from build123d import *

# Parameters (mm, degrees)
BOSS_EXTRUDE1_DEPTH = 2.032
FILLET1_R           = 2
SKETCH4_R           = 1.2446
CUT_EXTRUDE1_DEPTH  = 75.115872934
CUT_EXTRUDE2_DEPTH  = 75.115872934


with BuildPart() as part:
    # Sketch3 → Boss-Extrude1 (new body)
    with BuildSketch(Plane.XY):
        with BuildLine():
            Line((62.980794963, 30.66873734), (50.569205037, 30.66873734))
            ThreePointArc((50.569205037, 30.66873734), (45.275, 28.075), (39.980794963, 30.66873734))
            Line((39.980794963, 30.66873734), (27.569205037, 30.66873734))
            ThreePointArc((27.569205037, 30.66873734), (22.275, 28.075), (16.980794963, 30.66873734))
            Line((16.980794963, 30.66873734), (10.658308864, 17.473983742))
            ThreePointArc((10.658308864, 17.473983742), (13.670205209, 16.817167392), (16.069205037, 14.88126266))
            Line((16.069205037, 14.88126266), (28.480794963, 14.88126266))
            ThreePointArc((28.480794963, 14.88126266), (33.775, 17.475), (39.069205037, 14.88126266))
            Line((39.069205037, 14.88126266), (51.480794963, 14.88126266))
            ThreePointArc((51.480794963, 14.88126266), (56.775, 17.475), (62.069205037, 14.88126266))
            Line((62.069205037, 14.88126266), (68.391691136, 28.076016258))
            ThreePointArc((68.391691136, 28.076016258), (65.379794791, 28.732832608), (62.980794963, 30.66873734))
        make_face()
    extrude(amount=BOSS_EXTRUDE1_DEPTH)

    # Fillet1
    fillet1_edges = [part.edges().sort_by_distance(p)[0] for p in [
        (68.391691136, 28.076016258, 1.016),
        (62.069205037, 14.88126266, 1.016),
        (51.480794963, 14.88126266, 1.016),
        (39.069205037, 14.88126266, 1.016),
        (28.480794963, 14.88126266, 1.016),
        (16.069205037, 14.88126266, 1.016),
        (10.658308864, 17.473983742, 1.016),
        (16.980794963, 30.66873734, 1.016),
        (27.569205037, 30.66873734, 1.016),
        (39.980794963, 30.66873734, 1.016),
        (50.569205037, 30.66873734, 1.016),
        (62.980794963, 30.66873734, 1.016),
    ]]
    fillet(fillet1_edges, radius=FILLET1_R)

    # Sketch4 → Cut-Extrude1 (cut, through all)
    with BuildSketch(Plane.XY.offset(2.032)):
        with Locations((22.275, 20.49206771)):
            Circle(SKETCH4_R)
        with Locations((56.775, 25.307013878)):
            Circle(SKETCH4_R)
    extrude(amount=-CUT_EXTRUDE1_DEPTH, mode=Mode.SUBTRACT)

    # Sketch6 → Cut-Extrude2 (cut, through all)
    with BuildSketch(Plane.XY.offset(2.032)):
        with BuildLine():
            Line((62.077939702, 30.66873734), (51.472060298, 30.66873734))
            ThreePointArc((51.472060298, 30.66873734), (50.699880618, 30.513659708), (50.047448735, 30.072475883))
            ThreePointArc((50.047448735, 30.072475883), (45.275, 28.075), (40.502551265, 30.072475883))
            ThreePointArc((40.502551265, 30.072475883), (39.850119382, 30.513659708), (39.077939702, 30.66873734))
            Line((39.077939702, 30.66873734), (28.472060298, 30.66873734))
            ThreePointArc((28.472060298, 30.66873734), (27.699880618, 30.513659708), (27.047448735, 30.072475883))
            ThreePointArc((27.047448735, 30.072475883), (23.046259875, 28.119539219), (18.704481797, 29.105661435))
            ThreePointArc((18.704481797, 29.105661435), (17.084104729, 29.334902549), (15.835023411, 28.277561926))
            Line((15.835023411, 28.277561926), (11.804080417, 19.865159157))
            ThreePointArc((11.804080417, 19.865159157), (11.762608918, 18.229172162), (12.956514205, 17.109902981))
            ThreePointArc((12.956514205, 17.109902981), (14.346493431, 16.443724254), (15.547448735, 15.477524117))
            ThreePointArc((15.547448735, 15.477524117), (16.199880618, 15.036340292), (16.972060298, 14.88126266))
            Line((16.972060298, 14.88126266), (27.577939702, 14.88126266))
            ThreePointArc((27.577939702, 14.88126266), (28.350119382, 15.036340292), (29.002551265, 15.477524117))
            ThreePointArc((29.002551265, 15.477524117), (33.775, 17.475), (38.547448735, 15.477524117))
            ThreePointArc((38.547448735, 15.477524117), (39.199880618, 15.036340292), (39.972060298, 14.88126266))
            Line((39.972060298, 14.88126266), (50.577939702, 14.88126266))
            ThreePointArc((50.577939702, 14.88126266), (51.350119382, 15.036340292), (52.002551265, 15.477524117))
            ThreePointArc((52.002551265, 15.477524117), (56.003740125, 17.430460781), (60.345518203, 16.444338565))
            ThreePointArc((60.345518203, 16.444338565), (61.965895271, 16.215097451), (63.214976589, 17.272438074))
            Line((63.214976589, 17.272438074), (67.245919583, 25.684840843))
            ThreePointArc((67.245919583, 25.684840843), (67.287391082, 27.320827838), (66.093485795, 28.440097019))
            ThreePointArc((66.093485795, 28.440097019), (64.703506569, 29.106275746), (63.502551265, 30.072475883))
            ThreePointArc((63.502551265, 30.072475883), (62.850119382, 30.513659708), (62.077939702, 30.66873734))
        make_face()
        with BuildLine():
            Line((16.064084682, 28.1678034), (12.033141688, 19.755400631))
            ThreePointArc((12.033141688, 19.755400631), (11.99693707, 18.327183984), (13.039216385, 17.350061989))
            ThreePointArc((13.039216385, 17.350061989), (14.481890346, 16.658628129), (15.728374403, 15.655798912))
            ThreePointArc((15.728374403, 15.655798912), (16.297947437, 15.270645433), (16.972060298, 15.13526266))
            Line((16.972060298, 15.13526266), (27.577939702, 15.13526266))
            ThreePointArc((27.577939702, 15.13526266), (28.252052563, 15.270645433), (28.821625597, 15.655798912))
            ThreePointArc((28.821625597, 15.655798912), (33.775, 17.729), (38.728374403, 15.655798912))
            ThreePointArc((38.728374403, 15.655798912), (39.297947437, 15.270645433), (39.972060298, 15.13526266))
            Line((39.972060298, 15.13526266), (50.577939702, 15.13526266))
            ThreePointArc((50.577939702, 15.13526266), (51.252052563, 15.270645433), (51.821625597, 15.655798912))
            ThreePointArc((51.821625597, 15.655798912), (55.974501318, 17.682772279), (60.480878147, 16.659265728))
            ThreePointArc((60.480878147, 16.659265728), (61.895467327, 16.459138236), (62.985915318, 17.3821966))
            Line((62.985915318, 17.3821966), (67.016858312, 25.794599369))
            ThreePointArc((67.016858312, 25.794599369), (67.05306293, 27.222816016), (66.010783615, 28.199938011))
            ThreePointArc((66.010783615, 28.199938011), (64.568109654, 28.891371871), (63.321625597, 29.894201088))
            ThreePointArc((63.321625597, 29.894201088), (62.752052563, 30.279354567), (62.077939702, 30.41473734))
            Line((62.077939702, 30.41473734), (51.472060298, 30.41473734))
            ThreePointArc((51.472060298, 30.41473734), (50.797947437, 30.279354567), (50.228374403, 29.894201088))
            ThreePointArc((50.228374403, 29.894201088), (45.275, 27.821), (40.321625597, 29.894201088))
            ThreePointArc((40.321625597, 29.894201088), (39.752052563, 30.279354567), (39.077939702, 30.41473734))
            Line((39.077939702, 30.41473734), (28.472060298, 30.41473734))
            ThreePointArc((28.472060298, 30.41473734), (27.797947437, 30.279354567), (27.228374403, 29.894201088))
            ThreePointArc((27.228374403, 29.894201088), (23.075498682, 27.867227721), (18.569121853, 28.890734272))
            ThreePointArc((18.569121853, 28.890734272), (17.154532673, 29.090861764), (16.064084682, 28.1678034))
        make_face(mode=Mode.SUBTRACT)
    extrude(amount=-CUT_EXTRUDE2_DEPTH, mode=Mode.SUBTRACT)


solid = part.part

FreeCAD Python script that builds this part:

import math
import FreeCAD as App
import Part
import Sketcher

V = App.Vector


def edges_at(feature, points):
    """Names of the edges that pass closest to the given points."""
    edges = feature.Shape.Edges
    near = lambda p: min(range(len(edges)), key=lambda i: edges[i].distToShape(Part.Vertex(*p))[0])
    return sorted({f"Edge{near(p) + 1}" for p in points})

doc = App.newDocument("Part")
body = doc.addObject("PartDesign::Body", "Body")

sketch1 = body.newObject("Sketcher::SketchObject", "Sketch")
sketch1.AttachmentSupport = (doc.getObject("XY_Plane"), [""])
sketch1.MapMode = "FlatFace"
sketch1.addGeometry([
    Part.LineSegment(V(62.980795, 30.668737, 0), V(50.569205, 30.668737, 0)),
    Part.ArcOfCircle(Part.Circle(V(45.275, 34.775, 0), V(0, 0, 1), 6.7), math.radians(-142.202323), math.radians(-37.797677)),
    Part.LineSegment(V(39.980795, 30.668737, 0), V(27.569205, 30.668737, 0)),
    Part.ArcOfCircle(Part.Circle(V(22.275, 34.775, 0), V(0, 0, 1), 6.7), math.radians(-142.202323), math.radians(-37.797677)),
    Part.LineSegment(V(16.980795, 30.668737, 0), V(10.658309, 17.473984, 0)),
    Part.ArcOfCircle(Part.Circle(V(10.775, 10.775, 0), V(0, 0, 1), 6.7), math.radians(37.797678), math.radians(90.997947)),
    Part.LineSegment(V(16.069205, 14.881263, 0), V(28.480795, 14.881263, 0)),
    Part.ArcOfCircle(Part.Circle(V(33.775, 10.775, 0), V(0, 0, 1), 6.7), math.radians(37.797677), math.radians(142.202323)),
    Part.LineSegment(V(39.069205, 14.881263, 0), V(51.480795, 14.881263, 0)),
    Part.ArcOfCircle(Part.Circle(V(56.775, 10.775, 0), V(0, 0, 1), 6.7), math.radians(37.797677), math.radians(142.202323)),
    Part.LineSegment(V(62.069205, 14.881263, 0), V(68.391691, 28.076016, 0)),
    Part.ArcOfCircle(Part.Circle(V(68.275, 34.775, 0), V(0, 0, 1), 6.7), math.radians(-142.202322), math.radians(-89.002053)),
], False)
sketch1.addConstraint([
    Sketcher.Constraint("Coincident", 0, 2, 1, 2),
    Sketcher.Constraint("Coincident", 1, 1, 2, 1),
    Sketcher.Constraint("Coincident", 2, 2, 3, 2),
    Sketcher.Constraint("Coincident", 3, 1, 4, 1),
    Sketcher.Constraint("Coincident", 4, 2, 5, 2),
    Sketcher.Constraint("Coincident", 5, 1, 6, 1),
    Sketcher.Constraint("Coincident", 6, 2, 7, 2),
    Sketcher.Constraint("Coincident", 7, 1, 8, 1),
    Sketcher.Constraint("Coincident", 8, 2, 9, 2),
    Sketcher.Constraint("Coincident", 9, 1, 10, 1),
    Sketcher.Constraint("Coincident", 10, 2, 11, 2),
    Sketcher.Constraint("Coincident", 11, 1, 0, 1),
    Sketcher.Constraint("Horizontal", 0),
    Sketcher.Constraint("Horizontal", 2),
    Sketcher.Constraint("Horizontal", 6),
    Sketcher.Constraint("Horizontal", 8),
    Sketcher.Constraint("Equal", 1, 3),
    Sketcher.Constraint("Equal", 3, 5),
    Sketcher.Constraint("Equal", 5, 7),
    Sketcher.Constraint("Equal", 7, 9),
    Sketcher.Constraint("Equal", 9, 11),
    Sketcher.Constraint("Parallel", 4, 10),
    Sketcher.Constraint("Horizontal", 1, 3, 3, 3),
    Sketcher.Constraint("Horizontal", 5, 3, 7, 3),
    Sketcher.Constraint("Horizontal", 7, 3, 9, 3),
    Sketcher.Constraint("Horizontal", 3, 3, 11, 3),
    Sketcher.Constraint("Horizontal", 0, 2, 1, 1),
    Sketcher.Constraint("Horizontal", 2, 2, 3, 1),
    Sketcher.Constraint("Horizontal", 6, 2, 7, 1),
    Sketcher.Constraint("Horizontal", 8, 2, 9, 1),
    Sketcher.Constraint("Equal", 0, 2),
    Sketcher.Constraint("Equal", 2, 6),
    Sketcher.Constraint("Equal", 6, 8),
    Sketcher.Constraint("Equal", 4, 10),
    Sketcher.Constraint("Radius", 1, 6.7),
    Sketcher.Constraint("DistanceX", 3, 3, 1, 3, 23.0),
    Sketcher.Constraint("DistanceY", 5, 3, 3, 3, 24.0),
    Sketcher.Constraint("DistanceX", 5, 3, 3, 3, 11.5),
    Sketcher.Constraint("DistanceX", -1, 1, 1, 3, 45.275),
    Sketcher.Constraint("DistanceY", -1, 1, 1, 3, 34.775),
    Sketcher.Constraint("DistanceX", 0, 2, 0, 1, 12.41159),
    Sketcher.Constraint("DistanceX", -1, 1, 4, 2, 10.658309),
])
pad1 = body.newObject("PartDesign::Pad", "Pad")
pad1.Profile = sketch1
pad1.Length = 2.032
doc.recompute()

fillet = body.newObject("PartDesign::Fillet", "Fillet")
fillet.Base = (pad1, edges_at(pad1, [
    (68.392, 28.076, 1.016),
    (62.069, 14.881, 1.016),
    (51.481, 14.881, 1.016),
    (39.069, 14.881, 1.016),
    (28.481, 14.881, 1.016),
    (16.069, 14.881, 1.016),
    (10.658, 17.474, 1.016),
    (16.981, 30.669, 1.016),
    (27.569, 30.669, 1.016),
    (39.981, 30.669, 1.016),
    (50.569, 30.669, 1.016),
    (62.981, 30.669, 1.016),
]))
fillet.Radius = 2

sketch2 = body.newObject("Sketcher::SketchObject", "Sketch001")
sketch2.AttachmentSupport = (doc.getObject("XY_Plane"), [""])
sketch2.MapMode = "FlatFace"
sketch2.AttachmentOffset = App.Placement(V(0, 0, 2.032), App.Rotation())
sketch2.addGeometry([
    Part.Circle(V(22.275, 20.492068, 0), V(0, 0, 1), 1.2446),
    Part.Circle(V(56.775, 25.307014, 0), V(0, 0, 1), 1.2446),
], False)
sketch2.addConstraint([
    Sketcher.Constraint("Equal", 0, 1),
    Sketcher.Constraint("Diameter", 0, 2.4892),
    Sketcher.Constraint("DistanceX", 0, 3, 1, 3, 34.5),
    Sketcher.Constraint("DistanceX", -1, 1, 0, 3, 22.275),
    Sketcher.Constraint("DistanceY", -1, 1, 0, 3, 20.492068),
    Sketcher.Constraint("DistanceY", -1, 1, 1, 3, 25.307014),
])
pocket1 = body.newObject("PartDesign::Pocket", "Pocket")
pocket1.Profile = sketch2
pocket1.Type = "ThroughAll"

sketch3 = body.newObject("Sketcher::SketchObject", "Sketch002")
sketch3.AttachmentSupport = (doc.getObject("XY_Plane"), [""])
sketch3.MapMode = "FlatFace"
sketch3.AttachmentOffset = App.Placement(V(0, 0, 2.032), App.Rotation())
sketch3.addGeometry([
    Part.LineSegment(V(62.07794, 30.668737, 0), V(51.47206, 30.668737, 0)),
    Part.ArcOfCircle(Part.Circle(V(51.47206, 28.668737, 0), V(0, 0, 1), 2), math.radians(90), math.radians(135.422831)),
    Part.ArcOfCircle(Part.Circle(V(45.275, 34.775, 0), V(0, 0, 1), 6.7), math.radians(-135.422831), math.radians(-44.577169)),
    Part.ArcOfCircle(Part.Circle(V(39.07794, 28.668737, 0), V(0, 0, 1), 2), math.radians(44.577169), math.radians(90)),
    Part.LineSegment(V(39.07794, 30.668737, 0), V(28.47206, 30.668737, 0)),
    Part.ArcOfCircle(Part.Circle(V(28.47206, 28.668737, 0), V(0, 0, 1), 2), math.radians(90), math.radians(135.422831)),
    Part.ArcOfCircle(Part.Circle(V(22.275, 34.775, 0), V(0, 0, 1), 6.7), math.radians(-122.202498), math.radians(-44.577169)),
    Part.ArcOfCircle(Part.Circle(V(17.638655, 27.413322, 0), V(0, 0, 1), 2), math.radians(57.797502), math.radians(154.397812)),
    Part.LineSegment(V(15.835023, 28.277562, 0), V(11.80408, 19.865159, 0)),
    Part.ArcOfCircle(Part.Circle(V(13.607712, 19.000919, 0), V(0, 0, 1), 2), math.radians(154.397812), math.radians(250.998123)),
    Part.ArcOfCircle(Part.Circle(V(10.775, 10.775, 0), V(0, 0, 1), 6.7), math.radians(44.577169), math.radians(70.998123)),
    Part.ArcOfCircle(Part.Circle(V(16.97206, 16.881263, 0), V(0, 0, 1), 2), math.radians(-135.422831), math.radians(-90)),
    Part.LineSegment(V(16.97206, 14.881263, 0), V(27.57794, 14.881263, 0)),
    Part.ArcOfCircle(Part.Circle(V(27.57794, 16.881263, 0), V(0, 0, 1), 2), math.radians(-90), math.radians(-44.577169)),
    Part.ArcOfCircle(Part.Circle(V(33.775, 10.775, 0), V(0, 0, 1), 6.7), math.radians(44.577169), math.radians(135.422831)),
    Part.ArcOfCircle(Part.Circle(V(39.97206, 16.881263, 0), V(0, 0, 1), 2), math.radians(-135.422831), math.radians(-90)),
    Part.LineSegment(V(39.97206, 14.881263, 0), V(50.57794, 14.881263, 0)),
    Part.ArcOfCircle(Part.Circle(V(50.57794, 16.881263, 0), V(0, 0, 1), 2), math.radians(-90), math.radians(-44.577169)),
    Part.ArcOfCircle(Part.Circle(V(56.775, 10.775, 0), V(0, 0, 1), 6.7), math.radians(57.797502), math.radians(135.422831)),
    Part.ArcOfCircle(Part.Circle(V(61.411345, 18.136678, 0), V(0, 0, 1), 2), math.radians(-122.202498), math.radians(-25.602188)),
    Part.LineSegment(V(63.214977, 17.272438, 0), V(67.24592, 25.684841, 0)),
    Part.ArcOfCircle(Part.Circle(V(65.442288, 26.549081, 0), V(0, 0, 1), 2), math.radians(-25.602188), math.radians(70.998123)),
    Part.ArcOfCircle(Part.Circle(V(68.275, 34.775, 0), V(0, 0, 1), 6.7), math.radians(-135.422831), math.radians(-109.001877)),
    Part.ArcOfCircle(Part.Circle(V(62.07794, 28.668737, 0), V(0, 0, 1), 2), math.radians(44.577169), math.radians(90)),
    Part.LineSegment(V(12.033142, 19.755401, 0), V(16.064085, 28.167803, 0)),
    Part.ArcOfCircle(Part.Circle(V(17.638655, 27.413322, 0), V(0, 0, 1), 1.746), math.radians(57.797502), math.radians(154.397812)),
    Part.ArcOfCircle(Part.Circle(V(22.275, 34.775, 0), V(0, 0, 1), 6.954), math.radians(-122.202498), math.radians(-44.577169)),
    Part.ArcOfCircle(Part.Circle(V(28.47206, 28.668737, 0), V(0, 0, 1), 1.746), math.radians(90), math.radians(135.422831)),
    Part.LineSegment(V(28.47206, 30.414737, 0), V(39.07794, 30.414737, 0)),
    Part.ArcOfCircle(Part.Circle(V(39.07794, 28.668737, 0), V(0, 0, 1), 1.746), math.radians(44.577169), math.radians(90)),
    Part.ArcOfCircle(Part.Circle(V(45.275, 34.775, 0), V(0, 0, 1), 6.954), math.radians(-135.422831), math.radians(-44.577169)),
    Part.ArcOfCircle(Part.Circle(V(51.47206, 28.668737, 0), V(0, 0, 1), 1.746), math.radians(90), math.radians(135.422831)),
    Part.LineSegment(V(51.47206, 30.414737, 0), V(62.07794, 30.414737, 0)),
    Part.ArcOfCircle(Part.Circle(V(62.07794, 28.668737, 0), V(0, 0, 1), 1.746), math.radians(44.577169), math.radians(90)),
    Part.ArcOfCircle(Part.Circle(V(68.275, 34.775, 0), V(0, 0, 1), 6.954), math.radians(-135.422831), math.radians(-109.001877)),
    Part.ArcOfCircle(Part.Circle(V(65.442288, 26.549081, 0), V(0, 0, 1), 1.746), math.radians(-25.602188), math.radians(70.998123)),
    Part.LineSegment(V(67.016858, 25.794599, 0), V(62.985915, 17.382197, 0)),
    Part.ArcOfCircle(Part.Circle(V(61.411345, 18.136678, 0), V(0, 0, 1), 1.746), math.radians(-122.202498), math.radians(-25.602188)),
    Part.ArcOfCircle(Part.Circle(V(56.775, 10.775, 0), V(0, 0, 1), 6.954), math.radians(57.797502), math.radians(135.422831)),
    Part.ArcOfCircle(Part.Circle(V(50.57794, 16.881263, 0), V(0, 0, 1), 1.746), math.radians(-90), math.radians(-44.577169)),
    Part.LineSegment(V(50.57794, 15.135263, 0), V(39.97206, 15.135263, 0)),
    Part.ArcOfCircle(Part.Circle(V(39.97206, 16.881263, 0), V(0, 0, 1), 1.746), math.radians(-135.422831), math.radians(-90)),
    Part.ArcOfCircle(Part.Circle(V(33.775, 10.775, 0), V(0, 0, 1), 6.954), math.radians(44.577169), math.radians(135.422831)),
    Part.ArcOfCircle(Part.Circle(V(27.57794, 16.881263, 0), V(0, 0, 1), 1.746), math.radians(-90), math.radians(-44.577169)),
    Part.LineSegment(V(27.57794, 15.135263, 0), V(16.97206, 15.135263, 0)),
    Part.ArcOfCircle(Part.Circle(V(16.97206, 16.881263, 0), V(0, 0, 1), 1.746), math.radians(-135.422831), math.radians(-90)),
    Part.ArcOfCircle(Part.Circle(V(10.775, 10.775, 0), V(0, 0, 1), 6.954), math.radians(44.577169), math.radians(70.998123)),
    Part.ArcOfCircle(Part.Circle(V(13.607712, 19.000919, 0), V(0, 0, 1), 1.746), math.radians(154.397812), math.radians(250.998123)),
], False)
sketch3.addConstraint([
    Sketcher.Constraint("Tangent", 0, 2, 1, 1),
    Sketcher.Constraint("Tangent", 1, 2, 2, 2),
    Sketcher.Constraint("Tangent", 2, 1, 3, 1),
    Sketcher.Constraint("Tangent", 3, 2, 4, 1),
    Sketcher.Constraint("Tangent", 4, 2, 5, 1),
    Sketcher.Constraint("Tangent", 5, 2, 6, 2),
    Sketcher.Constraint("Tangent", 6, 1, 7, 1),
    Sketcher.Constraint("Tangent", 7, 2, 8, 1),
    Sketcher.Constraint("Tangent", 8, 2, 9, 1),
    Sketcher.Constraint("Tangent", 9, 2, 10, 2),
    Sketcher.Constraint("Tangent", 10, 1, 11, 1),
    Sketcher.Constraint("Tangent", 11, 2, 12, 1),
    Sketcher.Constraint("Tangent", 12, 2, 13, 1),
    Sketcher.Constraint("Tangent", 13, 2, 14, 2),
    Sketcher.Constraint("Tangent", 14, 1, 15, 1),
    Sketcher.Constraint("Tangent", 15, 2, 16, 1),
    Sketcher.Constraint("Tangent", 16, 2, 17, 1),
    Sketcher.Constraint("Tangent", 17, 2, 18, 2),
    Sketcher.Constraint("Tangent", 18, 1, 19, 1),
    Sketcher.Constraint("Tangent", 19, 2, 20, 1),
    Sketcher.Constraint("Tangent", 20, 2, 21, 1),
    Sketcher.Constraint("Tangent", 21, 2, 22, 2),
    Sketcher.Constraint("Tangent", 22, 1, 23, 1),
    Sketcher.Constraint("Tangent", 23, 2, 0, 1),
    Sketcher.Constraint("Tangent", 24, 2, 25, 2),
    Sketcher.Constraint("Tangent", 25, 1, 26, 1),
    Sketcher.Constraint("Tangent", 26, 2, 27, 2),
    Sketcher.Constraint("Tangent", 27, 1, 28, 1),
    Sketcher.Constraint("Tangent", 28, 2, 29, 2),
    Sketcher.Constraint("Tangent", 29, 1, 30, 1),
    Sketcher.Constraint("Tangent", 30, 2, 31, 2),
    Sketcher.Constraint("Tangent", 31, 1, 32, 1),
    Sketcher.Constraint("Tangent", 32, 2, 33, 2),
    Sketcher.Constraint("Tangent", 33, 1, 34, 1),
    Sketcher.Constraint("Tangent", 34, 2, 35, 2),
    Sketcher.Constraint("Tangent", 35, 1, 36, 1),
    Sketcher.Constraint("Tangent", 36, 2, 37, 2),
    Sketcher.Constraint("Tangent", 37, 1, 38, 1),
    Sketcher.Constraint("Tangent", 38, 2, 39, 2),
    Sketcher.Constraint("Tangent", 39, 1, 40, 1),
    Sketcher.Constraint("Tangent", 40, 2, 41, 2),
    Sketcher.Constraint("Tangent", 41, 1, 42, 1),
    Sketcher.Constraint("Tangent", 42, 2, 43, 2),
    Sketcher.Constraint("Tangent", 43, 1, 44, 1),
    Sketcher.Constraint("Tangent", 44, 2, 45, 2),
    Sketcher.Constraint("Tangent", 45, 1, 46, 1),
    Sketcher.Constraint("Tangent", 46, 2, 47, 2),
    Sketcher.Constraint("Tangent", 47, 1, 24, 1),
    Sketcher.Constraint("Horizontal", 0),
    Sketcher.Constraint("Horizontal", 4),
    Sketcher.Constraint("Horizontal", 12),
    Sketcher.Constraint("Horizontal", 16),
    Sketcher.Constraint("Horizontal", 28),
    Sketcher.Constraint("Horizontal", 32),
    Sketcher.Constraint("Horizontal", 40),
    Sketcher.Constraint("Horizontal", 44),
    Sketcher.Constraint("Coincident", 25, 3, 7, 3),
    Sketcher.Constraint("Coincident", 26, 3, 6, 3),
    Sketcher.Constraint("Coincident", 27, 3, 5, 3),
    Sketcher.Constraint("Coincident", 29, 3, 3, 3),
    Sketcher.Constraint("Coincident", 30, 3, 2, 3),
    Sketcher.Constraint("Coincident", 31, 3, 1, 3),
    Sketcher.Constraint("Coincident", 33, 3, 23, 3),
    Sketcher.Constraint("Coincident", 34, 3, 22, 3),
    Sketcher.Constraint("Coincident", 35, 3, 21, 3),
    Sketcher.Constraint("Coincident", 37, 3, 19, 3),
    Sketcher.Constraint("Coincident", 38, 3, 18, 3),
    Sketcher.Constraint("Coincident", 39, 3, 17, 3),
    Sketcher.Constraint("Coincident", 41, 3, 15, 3),
    Sketcher.Constraint("Coincident", 42, 3, 14, 3),
    Sketcher.Constraint("Coincident", 43, 3, 13, 3),
    Sketcher.Constraint("Coincident", 45, 3, 11, 3),
    Sketcher.Constraint("Coincident", 46, 3, 10, 3),
    Sketcher.Constraint("Coincident", 47, 3, 9, 3),
    Sketcher.Constraint("Equal", 1, 3),
    Sketcher.Constraint("Equal", 3, 5),
    Sketcher.Constraint("Equal", 2, 6),
    Sketcher.Constraint("Equal", 5, 7),
    Sketcher.Constraint("Equal", 7, 9),
    Sketcher.Constraint("Equal", 6, 10),
    Sketcher.Constraint("Equal", 9, 11),
    Sketcher.Constraint("Equal", 11, 13),
    Sketcher.Constraint("Equal", 10, 14),
    Sketcher.Constraint("Equal", 13, 15),
    Sketcher.Constraint("Equal", 15, 17),
    Sketcher.Constraint("Equal", 14, 18),
    Sketcher.Constraint("Equal", 17, 19),
    Sketcher.Constraint("Equal", 19, 21),
    Sketcher.Constraint("Equal", 18, 22),
    Sketcher.Constraint("Equal", 21, 23),
    Sketcher.Constraint("Equal", 35, 37),
    Sketcher.Constraint("Parallel", 8, 20),
    Sketcher.Constraint("Horizontal", 1, 3, 3, 3),
    Sketcher.Constraint("Horizontal", 2, 3, 6, 3),
    Sketcher.Constraint("Horizontal", 10, 3, 14, 3),
    Sketcher.Constraint("Horizontal", 13, 3, 15, 3),
    Sketcher.Constraint("Horizontal", 14, 3, 18, 3),
    Sketcher.Constraint("Horizontal", 6, 3, 22, 3),
    Sketcher.Constraint("Equal", 0, 4),
    Sketcher.Constraint("Equal", 4, 12),
    Sketcher.Constraint("Equal", 12, 16),
    Sketcher.Constraint("Equal", 8, 20),
    Sketcher.Constraint("Radius", 1, 2.0),
    Sketcher.Constraint("Radius", 2, 6.7),
    Sketcher.Constraint("Radius", 25, 1.746),
    Sketcher.Constraint("DistanceX", -1, 1, 2, 3, 45.275),
    Sketcher.Constraint("DistanceY", -1, 1, 2, 3, 34.775),
    Sketcher.Constraint("DistanceX", -1, 1, 6, 3, 22.275),
    Sketcher.Constraint("DistanceX", -1, 1, 10, 3, 10.775),
    Sketcher.Constraint("DistanceY", -1, 1, 10, 3, 10.775),
    Sketcher.Constraint("DistanceX", -1, 1, 14, 3, 33.775),
    Sketcher.Constraint("DistanceX", 0, 2, 0, 1, 10.605879),
    Sketcher.Constraint("DistanceY", -1, 1, 35, 1, 25.794599),
    Sketcher.Constraint("Distance", 8, 9.328291),
])
pocket2 = body.newObject("PartDesign::Pocket", "Pocket001")
pocket2.Profile = sketch3
pocket2.Type = "ThroughAll"

doc.recompute()
